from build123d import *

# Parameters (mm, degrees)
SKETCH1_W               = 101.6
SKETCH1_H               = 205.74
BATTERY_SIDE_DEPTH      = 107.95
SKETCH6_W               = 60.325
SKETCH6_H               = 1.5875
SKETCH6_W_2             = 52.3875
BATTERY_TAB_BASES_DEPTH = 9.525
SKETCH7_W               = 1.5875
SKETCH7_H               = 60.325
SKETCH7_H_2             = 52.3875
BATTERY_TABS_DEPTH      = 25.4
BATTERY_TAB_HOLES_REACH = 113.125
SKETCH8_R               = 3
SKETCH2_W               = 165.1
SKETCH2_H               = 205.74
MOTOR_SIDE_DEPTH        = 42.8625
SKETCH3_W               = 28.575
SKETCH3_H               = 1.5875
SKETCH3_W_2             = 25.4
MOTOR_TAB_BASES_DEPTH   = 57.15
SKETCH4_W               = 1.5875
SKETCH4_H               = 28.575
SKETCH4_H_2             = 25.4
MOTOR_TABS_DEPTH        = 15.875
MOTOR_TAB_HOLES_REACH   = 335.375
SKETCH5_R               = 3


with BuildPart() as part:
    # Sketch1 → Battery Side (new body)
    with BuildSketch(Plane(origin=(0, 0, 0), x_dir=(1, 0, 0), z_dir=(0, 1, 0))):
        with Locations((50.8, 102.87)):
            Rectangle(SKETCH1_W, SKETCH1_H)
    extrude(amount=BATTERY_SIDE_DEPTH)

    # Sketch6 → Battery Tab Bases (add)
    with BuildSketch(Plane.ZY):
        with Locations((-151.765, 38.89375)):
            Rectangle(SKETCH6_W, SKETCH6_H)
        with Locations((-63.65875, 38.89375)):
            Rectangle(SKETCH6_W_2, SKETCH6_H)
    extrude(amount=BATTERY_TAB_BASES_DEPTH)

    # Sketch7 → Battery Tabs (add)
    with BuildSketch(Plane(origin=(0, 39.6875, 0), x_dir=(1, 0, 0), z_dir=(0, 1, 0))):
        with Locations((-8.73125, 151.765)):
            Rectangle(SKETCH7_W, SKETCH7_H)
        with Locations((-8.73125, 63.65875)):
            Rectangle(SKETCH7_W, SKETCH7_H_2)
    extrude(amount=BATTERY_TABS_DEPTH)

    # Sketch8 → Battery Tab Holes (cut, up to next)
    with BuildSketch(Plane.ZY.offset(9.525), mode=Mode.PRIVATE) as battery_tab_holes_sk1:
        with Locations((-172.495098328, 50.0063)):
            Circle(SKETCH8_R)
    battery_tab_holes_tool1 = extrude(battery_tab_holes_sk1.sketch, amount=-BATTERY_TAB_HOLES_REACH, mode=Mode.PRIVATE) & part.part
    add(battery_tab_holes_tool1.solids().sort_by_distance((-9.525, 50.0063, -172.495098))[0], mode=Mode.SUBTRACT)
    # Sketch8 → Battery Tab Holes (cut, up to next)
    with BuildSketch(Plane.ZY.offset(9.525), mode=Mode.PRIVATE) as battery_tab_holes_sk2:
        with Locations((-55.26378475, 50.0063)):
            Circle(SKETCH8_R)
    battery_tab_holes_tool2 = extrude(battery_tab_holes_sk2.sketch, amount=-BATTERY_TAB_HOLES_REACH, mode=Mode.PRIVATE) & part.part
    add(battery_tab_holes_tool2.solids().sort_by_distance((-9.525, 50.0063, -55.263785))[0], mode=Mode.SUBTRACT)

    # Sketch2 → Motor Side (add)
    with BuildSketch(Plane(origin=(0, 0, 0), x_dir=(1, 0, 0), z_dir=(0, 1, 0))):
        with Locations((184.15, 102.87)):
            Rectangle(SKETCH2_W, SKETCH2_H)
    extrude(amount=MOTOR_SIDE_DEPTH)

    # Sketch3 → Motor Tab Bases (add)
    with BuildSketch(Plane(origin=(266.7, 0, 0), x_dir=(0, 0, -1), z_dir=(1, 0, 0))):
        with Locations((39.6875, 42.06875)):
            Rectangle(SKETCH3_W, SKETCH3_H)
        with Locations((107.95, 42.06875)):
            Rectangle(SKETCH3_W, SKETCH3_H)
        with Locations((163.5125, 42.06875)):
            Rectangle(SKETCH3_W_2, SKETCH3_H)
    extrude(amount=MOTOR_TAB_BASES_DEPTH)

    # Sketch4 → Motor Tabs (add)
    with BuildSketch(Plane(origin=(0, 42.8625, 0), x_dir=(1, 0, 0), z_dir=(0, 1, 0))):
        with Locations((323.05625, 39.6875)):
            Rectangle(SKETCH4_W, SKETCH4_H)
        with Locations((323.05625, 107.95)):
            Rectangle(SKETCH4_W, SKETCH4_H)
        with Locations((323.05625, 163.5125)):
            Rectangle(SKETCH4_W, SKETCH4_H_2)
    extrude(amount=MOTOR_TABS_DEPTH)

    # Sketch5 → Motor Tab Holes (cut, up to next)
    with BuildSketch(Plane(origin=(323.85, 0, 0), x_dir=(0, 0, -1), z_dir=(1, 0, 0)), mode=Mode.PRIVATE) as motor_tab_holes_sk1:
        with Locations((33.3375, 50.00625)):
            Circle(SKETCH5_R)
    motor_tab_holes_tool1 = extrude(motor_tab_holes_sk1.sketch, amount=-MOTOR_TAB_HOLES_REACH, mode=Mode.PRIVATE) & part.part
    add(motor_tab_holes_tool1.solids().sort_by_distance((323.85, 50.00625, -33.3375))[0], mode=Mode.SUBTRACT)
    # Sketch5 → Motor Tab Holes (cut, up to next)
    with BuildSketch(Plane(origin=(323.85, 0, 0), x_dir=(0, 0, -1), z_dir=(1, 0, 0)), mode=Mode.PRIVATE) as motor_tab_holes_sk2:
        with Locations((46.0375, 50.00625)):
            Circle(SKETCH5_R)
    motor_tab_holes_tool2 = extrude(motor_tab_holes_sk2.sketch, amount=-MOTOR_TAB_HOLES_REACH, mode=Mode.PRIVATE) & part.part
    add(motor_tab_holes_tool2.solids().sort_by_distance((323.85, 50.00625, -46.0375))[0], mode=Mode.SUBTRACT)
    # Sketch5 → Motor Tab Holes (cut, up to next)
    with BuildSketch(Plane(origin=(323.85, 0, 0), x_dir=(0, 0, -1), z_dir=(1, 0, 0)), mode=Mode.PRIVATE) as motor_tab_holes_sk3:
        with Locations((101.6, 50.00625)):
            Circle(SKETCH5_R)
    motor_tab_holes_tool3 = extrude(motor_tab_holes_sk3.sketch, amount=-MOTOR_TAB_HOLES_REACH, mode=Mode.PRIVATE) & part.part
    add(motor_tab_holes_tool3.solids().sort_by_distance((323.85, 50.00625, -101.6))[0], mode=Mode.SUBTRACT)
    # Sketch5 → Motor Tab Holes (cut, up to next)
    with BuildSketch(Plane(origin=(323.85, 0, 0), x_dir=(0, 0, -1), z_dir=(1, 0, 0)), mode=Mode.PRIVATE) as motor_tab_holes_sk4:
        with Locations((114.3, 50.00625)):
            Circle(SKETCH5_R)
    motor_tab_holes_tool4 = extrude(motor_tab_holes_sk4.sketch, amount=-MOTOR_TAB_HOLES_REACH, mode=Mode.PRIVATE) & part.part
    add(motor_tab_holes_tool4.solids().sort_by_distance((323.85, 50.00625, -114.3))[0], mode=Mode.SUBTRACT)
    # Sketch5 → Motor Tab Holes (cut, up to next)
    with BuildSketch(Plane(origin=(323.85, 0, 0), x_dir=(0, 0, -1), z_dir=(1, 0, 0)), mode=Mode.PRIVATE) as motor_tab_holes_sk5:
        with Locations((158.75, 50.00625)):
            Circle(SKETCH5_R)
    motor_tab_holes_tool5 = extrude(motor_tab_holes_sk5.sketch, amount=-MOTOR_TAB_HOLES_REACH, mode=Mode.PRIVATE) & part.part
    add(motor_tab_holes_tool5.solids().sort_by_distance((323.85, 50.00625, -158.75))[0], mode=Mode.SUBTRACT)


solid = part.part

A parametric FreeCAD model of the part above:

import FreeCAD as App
import Part
import Sketcher

V = App.Vector
Q = App.Units.Quantity

doc = App.newDocument("Part")
body = doc.addObject("PartDesign::Body", "Body")

# Sketch on XZ plane
sketch1 = doc.addObject("Sketcher::SketchObject", "Sketch")
body.addObject(sketch1)
sketch1.AttachmentSupport = (doc.XZ_Plane, [""])
sketch1.MapMode = "FlatFace"
sketch1.addGeometry([
    Part.LineSegment(V(0, -205.74, 0), V(0, 0, 0)),
    Part.LineSegment(V(0, 0, 0), V(101.6, 0, 0)),
    Part.LineSegment(V(101.6, 0, 0), V(101.6, -205.74, 0)),
    Part.LineSegment(V(101.6, -205.74, 0), V(0, -205.74, 0)),
], False)
sketch1.addConstraint([
    Sketcher.Constraint("Coincident", 0, 2, 1, 1),
    Sketcher.Constraint("Coincident", 1, 2, 2, 1),
    Sketcher.Constraint("Coincident", 2, 2, 3, 1),
    Sketcher.Constraint("Coincident", 3, 2, 0, 1),
    Sketcher.Constraint("Vertical", 0),
    Sketcher.Constraint("Horizontal", 1),
    Sketcher.Constraint("Vertical", 2),
    Sketcher.Constraint("Horizontal", 3),
    Sketcher.Constraint("Coincident", 0, 2, -1, 1),
    Sketcher.Constraint("DistanceX", 1, 1, 1, 2, Q("4 in")),
    Sketcher.Constraint("DistanceY", 0, 1, 0, 2, Q("8.1 in")),
])
pad1 = doc.addObject("PartDesign::Pad", "Pad")
body.addObject(pad1)
pad1.Profile = sketch1
pad1.Length = Q("4.25 in")
pad1.Reversed = True

# Sketch on YZ plane
sketch2 = doc.addObject("Sketcher::SketchObject", "Sketch001")
body.addObject(sketch2)
sketch2.AttachmentSupport = (doc.YZ_Plane, [""])
sketch2.MapMode = "FlatFace"
sketch2.addGeometry([
    Part.LineSegment(V(39.6875, -181.9275, 0), V(38.1, -181.9275, 0)),  # 0
    Part.LineSegment(V(38.1, -181.9275, 0), V(38.1, -121.6025, 0)),  # 1
    Part.LineSegment(V(38.1, -121.6025, 0), V(39.6875, -121.6025, 0)),  # 2
    Part.LineSegment(V(39.6875, -121.6025, 0), V(39.6875, -181.9275, 0)),  # 3
    Part.LineSegment(V(39.6875, -89.8525, 0), V(38.1, -89.8525, 0)),  # 4
    Part.LineSegment(V(38.1, -89.8525, 0), V(38.1, -37.465, 0)),  # 5
    Part.LineSegment(V(38.1, -37.465, 0), V(39.6875, -37.465, 0)),  # 6
    Part.LineSegment(V(39.6875, -37.465, 0), V(39.6875, -89.8525, 0)),  # 7
], False)
sketch2.addConstraint([
    Sketcher.Constraint("Coincident", 0, 2, 1, 1),
    Sketcher.Constraint("Coincident", 1, 2, 2, 1),
    Sketcher.Constraint("Coincident", 2, 2, 3, 1),
    Sketcher.Constraint("Coincident", 3, 2, 0, 1),
    Sketcher.Constraint("Coincident", 4, 2, 5, 1),
    Sketcher.Constraint("Coincident", 5, 2, 6, 1),
    Sketcher.Constraint("Coincident", 6, 2, 7, 1),
    Sketcher.Constraint("Coincident", 7, 2, 4, 1),
    Sketcher.Constraint("Horizontal", 0),
    Sketcher.Constraint("Vertical", 1),
    Sketcher.Constraint("Horizontal", 2),
    Sketcher.Constraint("Vertical", 3),
    Sketcher.Constraint("Horizontal", 4),
    Sketcher.Constraint("Vertical", 5),
    Sketcher.Constraint("Horizontal", 6),
    Sketcher.Constraint("Vertical", 7),
    Sketcher.Constraint("Vertical", 1, 2, 4, 2),
    Sketcher.Constraint("Vertical", 3, 2, 6, 2),
    Sketcher.Constraint("DistanceX", -1, 1, 0, 2, Q("1.5 in")),
    Sketcher.Constraint("DistanceX", 0, 2, 0, 1, Q("0.0625 in")),
    Sketcher.Constraint("DistanceY", 1, 1, 1, 2, Q("2.375 in")),
    Sketcher.Constraint("DistanceY", 5, 1, 5, 2, Q("2.0625 in")),
    Sketcher.Constraint("DistanceY", 1, 2, 4, 2, Q("1.25 in")),
    Sketcher.Constraint("DistanceY", 5, 2, -1, 1, Q("1.475 in")),
])
pad2 = doc.addObject("PartDesign::Pad", "Pad001")
body.addObject(pad2)
pad2.Profile = sketch2
pad2.Length = Q("0.375 in")
pad2.Reversed = True

# Sketch on XZ plane
sketch3 = doc.addObject("Sketcher::SketchObject", "Sketch002")
body.addObject(sketch3)
sketch3.AttachmentSupport = (doc.XZ_Plane, [""])
sketch3.MapMode = "FlatFace"
sketch3.AttachmentOffset = App.Placement(V(0, 0, -1.5625 * 25.4), App.Rotation())
sketch3.addGeometry([
    Part.LineSegment(V(-9.525, -181.9275, 0), V(-9.525, -121.6025, 0)),  # 0
    Part.LineSegment(V(-9.525, -121.6025, 0), V(-7.9375, -121.6025, 0)),  # 1
    Part.LineSegment(V(-7.9375, -121.6025, 0), V(-7.9375, -181.9275, 0)),  # 2
    Part.LineSegment(V(-7.9375, -181.9275, 0), V(-9.525, -181.9275, 0)),  # 3
    Part.LineSegment(V(-9.525, -89.8525, 0), V(-9.525, -37.465, 0)),  # 4
    Part.LineSegment(V(-9.525, -37.465, 0), V(-7.9375, -37.465, 0)),  # 5
    Part.LineSegment(V(-7.9375, -37.465, 0), V(-7.9375, -89.8525, 0)),  # 6
    Part.LineSegment(V(-7.9375, -89.8525, 0), V(-9.525, -89.8525, 0)),  # 7
], False)
sketch3.addConstraint([
    Sketcher.Constraint("Coincident", 0, 2, 1, 1),
    Sketcher.Constraint("Coincident", 1, 2, 2, 1),
    Sketcher.Constraint("Coincident", 2, 2, 3, 1),
    Sketcher.Constraint("Coincident", 3, 2, 0, 1),
    Sketcher.Constraint("Coincident", 4, 2, 5, 1),
    Sketcher.Constraint("Coincident", 5, 2, 6, 1),
    Sketcher.Constraint("Coincident", 6, 2, 7, 1),
    Sketcher.Constraint("Coincident", 7, 2, 4, 1),
    Sketcher.Constraint("Vertical", 0),
    Sketcher.Constraint("Horizontal", 1),
    Sketcher.Constraint("Vertical", 2),
    Sketcher.Constraint("Horizontal", 3),
    Sketcher.Constraint("Vertical", 4),
    Sketcher.Constraint("Horizontal", 5),
    Sketcher.Constraint("Vertical", 6),
    Sketcher.Constraint("Horizontal", 7),
    Sketcher.Constraint("Vertical", 3, 2, 4, 2),
    Sketcher.Constraint("Vertical", 2, 2, 5, 2),
    Sketcher.Constraint("DistanceX", 1, 1, 1, 2, Q("0.0625 in")),
    Sketcher.Constraint("DistanceY", 0, 1, 0, 2, Q("2.375 in")),
    Sketcher.Constraint("DistanceY", 4, 1, 4, 2, Q("2.0625 in")),
    Sketcher.Constraint("DistanceY", 1, 2, 6, 2, Q("1.25 in")),
    Sketcher.Constraint("DistanceX", 0, 2, -1, 1, Q("0.375 in")),
    Sketcher.Constraint("DistanceY", 4, 2, -1, 1, Q("1.475 in")),
])
pad3 = doc.addObject("PartDesign::Pad", "Pad002")
body.addObject(pad3)
pad3.Profile = sketch3
pad3.Length = Q("1 in")
pad3.Reversed = True

# Sketch on YZ plane
sketch4 = doc.addObject("Sketcher::SketchObject", "Sketch003")
body.addObject(sketch4)
sketch4.AttachmentSupport = (doc.YZ_Plane, [""])
sketch4.MapMode = "FlatFace"
sketch4.AttachmentOffset = App.Placement(V(0, 0, -0.375 * 25.4), App.Rotation())
sketch4.addGeometry(Part.Circle(V(50.0063, -172.495098, 0), V(0, 0, 1), 3), False)
sketch4.addConstraint([
    Sketcher.Constraint("Diameter", 0, 6.0),
    Sketcher.Constraint("DistanceX", -1, 1, 0, 3, 50.0063),
    Sketcher.Constraint("DistanceY", 0, 3, -1, 1, 172.495098),
])
pocket1 = doc.addObject("PartDesign::Pocket", "Pocket")
body.addObject(pocket1)
pocket1.Profile = sketch4
pocket1.Type = "UpToFirst"
pocket1.Reversed = True

# Sketch on YZ plane
sketch5 = doc.addObject("Sketcher::SketchObject", "Sketch004")
body.addObject(sketch5)
sketch5.AttachmentSupport = (doc.YZ_Plane, [""])
sketch5.MapMode = "FlatFace"
sketch5.AttachmentOffset = App.Placement(V(0, 0, -0.375 * 25.4), App.Rotation())
sketch5.addGeometry(Part.Circle(V(50.0063, -55.263785, 0), V(0, 0, 1), 3), False)
sketch5.addConstraint([
    Sketcher.Constraint("Diameter", 0, 6.0),
    Sketcher.Constraint("DistanceX", -1, 1, 0, 3, 50.0063),
    Sketcher.Constraint("DistanceY", 0, 3, -1, 1, 55.263785),
])
pocket2 = doc.addObject("PartDesign::Pocket", "Pocket001")
body.addObject(pocket2)
pocket2.Profile = sketch5
pocket2.Type = "UpToFirst"
pocket2.Reversed = True

# Sketch on XZ plane
sketch6 = doc.addObject("Sketcher::SketchObject", "Sketch005")
body.addObject(sketch6)
sketch6.AttachmentSupport = (doc.XZ_Plane, [""])
sketch6.MapMode = "FlatFace"
sketch6.addGeometry([
    Part.LineSegment(V(101.6, -205.74, 0), V(101.6, 0, 0)),
    Part.LineSegment(V(101.6, 0, 0), V(266.7, 0, 0)),
    Part.LineSegment(V(266.7, 0, 0), V(266.7, -205.74, 0)),
    Part.LineSegment(V(266.7, -205.74, 0), V(101.6, -205.74, 0)),
], False)
sketch6.addConstraint([
    Sketcher.Constraint("Coincident", 0, 2, 1, 1),
    Sketcher.Constraint("Coincident", 1, 2, 2, 1),
    Sketcher.Constraint("Coincident", 2, 2, 3, 1),
    Sketcher.Constraint("Coincident", 3, 2, 0, 1),
    Sketcher.Constraint("Vertical", 0),
    Sketcher.Constraint("Horizontal", 1),
    Sketcher.Constraint("Vertical", 2),
    Sketcher.Constraint("Horizontal", 3),
    Sketcher.Constraint("PointOnObject", 0, 2, -1),
    Sketcher.Constraint("DistanceX", 1, 1, 1, 2, Q("6.5 in")),
    Sketcher.Constraint("DistanceY", 0, 1, 0, 2, Q("8.1 in")),
    Sketcher.Constraint("DistanceX", -1, 1, 0, 2, Q("4 in")),
])
pad4 = doc.addObject("PartDesign::Pad", "Pad003")
body.addObject(pad4)
pad4.Profile = sketch6
pad4.Length = Q("1.6875 in")
pad4.Reversed = True

# Sketch on YZ plane
sketch7 = doc.addObject("Sketcher::SketchObject", "Sketch006")
body.addObject(sketch7)
sketch7.AttachmentSupport = (doc.YZ_Plane, [""])
sketch7.MapMode = "FlatFace"
sketch7.AttachmentOffset = App.Placement(V(0, 0, 10.5 * 25.4), App.Rotation())
sketch7.addGeometry([
    Part.LineSegment(V(42.8625, -25.4, 0), V(41.275, -25.4, 0)),  # 0
    Part.LineSegment(V(41.275, -25.4, 0), V(41.275, -53.975, 0)),  # 1
    Part.LineSegment(V(41.275, -53.975, 0), V(42.8625, -53.975, 0)),  # 2
    Part.LineSegment(V(42.8625, -53.975, 0), V(42.8625, -25.4, 0)),  # 3
    Part.LineSegment(V(42.8625, -93.6625, 0), V(41.275, -93.6625, 0)),  # 4
    Part.LineSegment(V(41.275, -93.6625, 0), V(41.275, -122.2375, 0)),  # 5
    Part.LineSegment(V(41.275, -122.2375, 0), V(42.8625, -122.2375, 0)),  # 6
    Part.LineSegment(V(42.8625, -122.2375, 0), V(42.8625, -93.6625, 0)),  # 7
    Part.LineSegment(V(42.8625, -150.8125, 0), V(41.275, -150.8125, 0)),  # 8
    Part.LineSegment(V(41.275, -150.8125, 0), V(41.275, -176.2125, 0)),  # 9
    Part.LineSegment(V(41.275, -176.2125, 0), V(42.8625, -176.2125, 0)),  # 10
    Part.LineSegment(V(42.8625, -176.2125, 0), V(42.8625, -150.8125, 0)),  # 11
], False)
sketch7.addConstraint([
    Sketcher.Constraint("Coincident", 0, 2, 1, 1),
    Sketcher.Constraint("Coincident", 1, 2, 2, 1),
    Sketcher.Constraint("Coincident", 2, 2, 3, 1),
    Sketcher.Constraint("Coincident", 3, 2, 0, 1),
    Sketcher.Constraint("Coincident", 4, 2, 5, 1),
    Sketcher.Constraint("Coincident", 5, 2, 6, 1),
    Sketcher.Constraint("Coincident", 6, 2, 7, 1),
    Sketcher.Constraint("Coincident", 7, 2, 4, 1),
    Sketcher.Constraint("Coincident", 8, 2, 9, 1),
    Sketcher.Constraint("Coincident", 9, 2, 10, 1),
    Sketcher.Constraint("Coincident", 10, 2, 11, 1),
    Sketcher.Constraint("Coincident", 11, 2, 8, 1),
    Sketcher.Constraint("Horizontal", 0),
    Sketcher.Constraint("Vertical", 1),
    Sketcher.Constraint("Horizontal", 2),
    Sketcher.Constraint("Vertical", 3),
    Sketcher.Constraint("Horizontal", 4),
    Sketcher.Constraint("Vertical", 5),
    Sketcher.Constraint("Horizontal", 6),
    Sketcher.Constraint("Vertical", 7),
    Sketcher.Constraint("Horizontal", 8),
    Sketcher.Constraint("Vertical", 9),
    Sketcher.Constraint("Horizontal", 10),
    Sketcher.Constraint("Vertical", 11),
    Sketcher.Constraint("Vertical", 1, 2, 4, 2),
    Sketcher.Constraint("Vertical", 3, 2, 6, 2),
    Sketcher.Constraint("Vertical", 5, 2, 8, 2),
    Sketcher.Constraint("Vertical", 7, 2, 10, 2),
    Sketcher.Constraint("Equal", 3, 5),
    Sketcher.Constraint("DistanceY", 9, 2, 9, 1, Q("1 in")),
    Sketcher.Constraint("DistanceY", 0, 2, -1, 1, Q("1 in")),
    Sketcher.Constraint("DistanceX", 0, 2, 0, 1, Q("0.0625 in")),
    Sketcher.Constraint("DistanceY", 1, 2, 1, 1, Q("1.125 in")),
    Sketcher.Constraint("DistanceY", 8, 2, 4, 2, Q("2.25 in")),
    Sketcher.Constraint("DistanceX", -1, 1, 0, 2, Q("1.625 in")),
    Sketcher.Constraint("DistanceY", 4, 2, -1, 1, Q("3.6875 in")),
])
pad5 = doc.addObject("PartDesign::Pad", "Pad004")
body.addObject(pad5)
pad5.Profile = sketch7
pad5.Length = Q("2.25 in")

# Sketch on XZ plane
sketch8 = doc.addObject("Sketcher::SketchObject", "Sketch007")
body.addObject(sketch8)
sketch8.AttachmentSupport = (doc.XZ_Plane, [""])
sketch8.MapMode = "FlatFace"
sketch8.AttachmentOffset = App.Placement(V(0, 0, -1.6875 * 25.4), App.Rotation())
sketch8.addGeometry([
    Part.LineSegment(V(322.2625, -53.975, 0), V(322.2625, -25.4, 0)),  # 0
    Part.LineSegment(V(322.2625, -25.4, 0), V(323.85, -25.4, 0)),  # 1
    Part.LineSegment(V(323.85, -25.4, 0), V(323.85, -53.975, 0)),  # 2
    Part.LineSegment(V(323.85, -53.975, 0), V(322.2625, -53.975, 0)),  # 3
    Part.LineSegment(V(322.2625, -122.2375, 0), V(322.2625, -93.6625, 0)),  # 4
    Part.LineSegment(V(322.2625, -93.6625, 0), V(323.85, -93.6625, 0)),  # 5
    Part.LineSegment(V(323.85, -93.6625, 0), V(323.85, -122.2375, 0)),  # 6
    Part.LineSegment(V(323.85, -122.2375, 0), V(322.2625, -122.2375, 0)),  # 7
    Part.LineSegment(V(322.2625, -176.2125, 0), V(322.2625, -150.8125, 0)),  # 8
    Part.LineSegment(V(322.2625, -150.8125, 0), V(323.85, -150.8125, 0)),  # 9
    Part.LineSegment(V(323.85, -150.8125, 0), V(323.85, -176.2125, 0)),  # 10
    Part.LineSegment(V(323.85, -176.2125, 0), V(322.2625, -176.2125, 0)),  # 11
], False)
sketch8.addConstraint([
    Sketcher.Constraint("Coincident", 0, 2, 1, 1),
    Sketcher.Constraint("Coincident", 1, 2, 2, 1),
    Sketcher.Constraint("Coincident", 2, 2, 3, 1),
    Sketcher.Constraint("Coincident", 3, 2, 0, 1),
    Sketcher.Constraint("Coincident", 4, 2, 5, 1),
    Sketcher.Constraint("Coincident", 5, 2, 6, 1),
    Sketcher.Constraint("Coincident", 6, 2, 7, 1),
    Sketcher.Constraint("Coincident", 7, 2, 4, 1),
    Sketcher.Constraint("Coincident", 8, 2, 9, 1),
    Sketcher.Constraint("Coincident", 9, 2, 10, 1),
    Sketcher.Constraint("Coincident", 10, 2, 11, 1),
    Sketcher.Constraint("Coincident", 11, 2, 8, 1),
    Sketcher.Constraint("Vertical", 0),
    Sketcher.Constraint("Horizontal", 1),
    Sketcher.Constraint("Vertical", 2),
    Sketcher.Constraint("Horizontal", 3),
    Sketcher.Constraint("Vertical", 4),
    Sketcher.Constraint("Horizontal", 5),
    Sketcher.Constraint("Vertical", 6),
    Sketcher.Constraint("Horizontal", 7),
    Sketcher.Constraint("Vertical", 8),
    Sketcher.Constraint("Horizontal", 9),
    Sketcher.Constraint("Vertical", 10),
    Sketcher.Constraint("Horizontal", 11),
    Sketcher.Constraint("Vertical", 3, 2, 4, 2),
    Sketcher.Constraint("Vertical", 2, 2, 5, 2),
    Sketcher.Constraint("Vertical", 7, 2, 8, 2),
    Sketcher.Constraint("Vertical", 6, 2, 9, 2),
    Sketcher.Constraint("Equal", 2, 4),
    Sketcher.Constraint("DistanceY", 8, 1, 8, 2, Q("1 in")),
    Sketcher.Constraint("DistanceY", 0, 2, -1, 1, Q("1 in")),
    Sketcher.Constraint("DistanceX", 1, 1, 1, 2, Q("0.0625 in")),
    Sketcher.Constraint("DistanceY", 0, 1, 0, 2, Q("1.125 in")),
    Sketcher.Constraint("DistanceX", -1, 1, 1, 2, Q("12.75 in")),
    Sketcher.Constraint("DistanceY", 8, 2, 4, 2, Q("2.25 in")),
    Sketcher.Constraint("DistanceY", 4, 2, -1, 1, Q("3.6875 in")),
])
pad6 = doc.addObject("PartDesign::Pad", "Pad005")
body.addObject(pad6)
pad6.Profile = sketch8
pad6.Length = Q("0.625 in")
pad6.Reversed = True

# Sketch on YZ plane
sketch9 = doc.addObject("Sketcher::SketchObject", "Sketch008")
body.addObject(sketch9)
sketch9.AttachmentSupport = (doc.YZ_Plane, [""])
sketch9.MapMode = "FlatFace"
sketch9.AttachmentOffset = App.Placement(V(0, 0, 12.75 * 25.4), App.Rotation())
sketch9.addGeometry(Part.Circle(V(50.00625, -33.3375, 0), V(0, 0, 1), 3), False)
sketch9.addConstraint([
    Sketcher.Constraint("Diameter", 0, 6.0),
    Sketcher.Constraint("DistanceX", -1, 1, 0, 3, Q("1.96875 in")),
    Sketcher.Constraint("DistanceY", 0, 3, -1, 1, Q("1.3125 in")),
])
pocket3 = doc.addObject("PartDesign::Pocket", "Pocket002")
body.addObject(pocket3)
pocket3.Profile = sketch9
pocket3.Type = "UpToFirst"

# Sketch on YZ plane
sketch10 = doc.addObject("Sketcher::SketchObject", "Sketch009")
body.addObject(sketch10)
sketch10.AttachmentSupport = (doc.YZ_Plane, [""])
sketch10.MapMode = "FlatFace"
sketch10.AttachmentOffset = App.Placement(V(0, 0, 12.75 * 25.4), App.Rotation())
sketch10.addGeometry(Part.Circle(V(50.00625, -46.0375, 0), V(0, 0, 1), 3), False)
sketch10.addConstraint([
    Sketcher.Constraint("Diameter", 0, 6.0),
    Sketcher.Constraint("DistanceX", -1, 1, 0, 3, Q("1.96875 in")),
    Sketcher.Constraint("DistanceY", 0, 3, -1, 1, Q("1.8125 in")),
])
pocket4 = doc.addObject("PartDesign::Pocket", "Pocket003")
body.addObject(pocket4)
pocket4.Profile = sketch10
pocket4.Type = "UpToFirst"

# Sketch on YZ plane
sketch11 = doc.addObject("Sketcher::SketchObject", "Sketch010")
body.addObject(sketch11)
sketch11.AttachmentSupport = (doc.YZ_Plane, [""])
sketch11.MapMode = "FlatFace"
sketch11.AttachmentOffset = App.Placement(V(0, 0, 12.75 * 25.4), App.Rotation())
sketch11.addGeometry(Part.Circle(V(50.00625, -101.6, 0), V(0, 0, 1), 3), False)
sketch11.addConstraint([
    Sketcher.Constraint("DistanceY", 0, 3, -1, 1, Q("4 in")),
    Sketcher.Constraint("Diameter", 0, 6.0),
    Sketcher.Constraint("DistanceX", -1, 1, 0, 3, Q("1.96875 in")),
])
pocket5 = doc.addObject("PartDesign::Pocket", "Pocket004")
body.addObject(pocket5)
pocket5.Profile = sketch11
pocket5.Type = "UpToFirst"

# Sketch on YZ plane
sketch12 = doc.addObject("Sketcher::SketchObject", "Sketch011")
body.addObject(sketch12)
sketch12.AttachmentSupport = (doc.YZ_Plane, [""])
sketch12.MapMode = "FlatFace"
sketch12.AttachmentOffset = App.Placement(V(0, 0, 12.75 * 25.4), App.Rotation())
sketch12.addGeometry(Part.Circle(V(50.00625, -114.3, 0), V(0, 0, 1), 3), False)
sketch12.addConstraint([
    Sketcher.Constraint("DistanceY", 0, 3, -1, 1, Q("4.5 in")),
    Sketcher.Constraint("Diameter", 0, 6.0),
    Sketcher.Constraint("DistanceX", -1, 1, 0, 3, Q("1.96875 in")),
])
pocket6 = doc.addObject("PartDesign::Pocket", "Pocket005")
body.addObject(pocket6)
pocket6.Profile = sketch12
pocket6.Type = "UpToFirst"

# Sketch on YZ plane
sketch13 = doc.addObject("Sketcher::SketchObject", "Sketch012")
body.addObject(sketch13)
sketch13.AttachmentSupport = (doc.YZ_Plane, [""])
sketch13.MapMode = "FlatFace"
sketch13.AttachmentOffset = App.Placement(V(0, 0, 12.75 * 25.4), App.Rotation())
sketch13.addGeometry(Part.Circle(V(50.00625, -158.75, 0), V(0, 0, 1), 3), False)
sketch13.addConstraint([
    Sketcher.Constraint("Diameter", 0, 6.0),
    Sketcher.Constraint("DistanceY", 0, 3, -1, 1, Q("6.25 in")),
    Sketcher.Constraint("DistanceX", -1, 1, 0, 3, Q("1.96875 in")),
])
pocket7 = doc.addObject("PartDesign::Pocket", "Pocket006")
body.addObject(pocket7)
pocket7.Profile = sketch13
pocket7.Type = "UpToFirst"

doc.recompute()
